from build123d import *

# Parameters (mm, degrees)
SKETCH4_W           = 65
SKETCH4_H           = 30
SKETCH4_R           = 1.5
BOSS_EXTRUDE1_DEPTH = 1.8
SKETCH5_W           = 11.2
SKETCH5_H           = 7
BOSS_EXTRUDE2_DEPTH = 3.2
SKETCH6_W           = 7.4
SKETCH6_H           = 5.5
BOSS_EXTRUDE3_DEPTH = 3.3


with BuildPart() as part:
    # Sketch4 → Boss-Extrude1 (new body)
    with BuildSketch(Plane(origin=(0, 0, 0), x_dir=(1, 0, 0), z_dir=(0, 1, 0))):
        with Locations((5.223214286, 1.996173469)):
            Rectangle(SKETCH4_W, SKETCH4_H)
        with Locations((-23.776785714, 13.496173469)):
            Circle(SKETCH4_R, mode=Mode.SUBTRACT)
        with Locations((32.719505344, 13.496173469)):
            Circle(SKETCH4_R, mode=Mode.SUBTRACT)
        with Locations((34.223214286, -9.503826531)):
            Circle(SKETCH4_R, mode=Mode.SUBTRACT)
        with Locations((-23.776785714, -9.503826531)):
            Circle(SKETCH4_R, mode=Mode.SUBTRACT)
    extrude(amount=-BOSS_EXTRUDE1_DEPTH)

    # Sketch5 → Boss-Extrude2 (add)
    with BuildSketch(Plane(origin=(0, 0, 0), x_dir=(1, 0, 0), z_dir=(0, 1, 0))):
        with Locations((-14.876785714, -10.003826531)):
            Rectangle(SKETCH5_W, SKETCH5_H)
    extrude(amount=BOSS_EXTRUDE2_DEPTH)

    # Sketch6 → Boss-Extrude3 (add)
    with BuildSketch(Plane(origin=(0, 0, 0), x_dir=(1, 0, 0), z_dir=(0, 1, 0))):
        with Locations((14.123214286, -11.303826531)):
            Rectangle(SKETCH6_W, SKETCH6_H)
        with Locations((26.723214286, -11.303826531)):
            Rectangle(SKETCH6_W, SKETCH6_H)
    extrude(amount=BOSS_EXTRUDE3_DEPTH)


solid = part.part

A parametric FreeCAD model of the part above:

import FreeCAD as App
import Part
import Sketcher
Q = App.Units.Quantity

doc = App.newDocument("Part")
body = doc.addObject("PartDesign::Body", "Body")

# Sketch on XZ plane
sketch1 = body.newObject("Sketcher::SketchObject", "Sketch")
sketch1.AttachmentSupport = (doc.getObject("XZ_Plane"), [""])
sketch1.MapMode = "FlatFace"
sketch1.addGeometry([
    Part.LineSegment(App.Vector(-27.276786, -16.996173, 0), App.Vector(-27.276786, 13.003827, 0)),  # 0
    Part.LineSegment(App.Vector(-27.276786, 13.003827, 0), App.Vector(37.723214, 13.003827, 0)),  # 1
    Part.LineSegment(App.Vector(37.723214, 13.003827, 0), App.Vector(37.723214, -16.996173, 0)),  # 2
    Part.LineSegment(App.Vector(37.723214, -16.996173, 0), App.Vector(-27.276786, -16.996173, 0)),  # 3
    Part.Circle(App.Vector(-23.776786, 9.503827, 0), App.Vector(0, 0, 1), 1.5),  # 4
    Part.Circle(App.Vector(34.223214, 9.503827, 0), App.Vector(0, 0, 1), 1.5),  # 5
    Part.Circle(App.Vector(-23.776786, -13.496173, 0), App.Vector(0, 0, 1), 1.5),  # 6
    Part.Circle(App.Vector(32.719505, -13.496173, 0), App.Vector(0, 0, 1), 1.5),  # 7
], False)
sketch1.addConstraint([
    Sketcher.Constraint("Coincident", 0, 2, 1, 1),
    Sketcher.Constraint("Coincident", 1, 2, 2, 1),
    Sketcher.Constraint("Coincident", 2, 2, 3, 1),
    Sketcher.Constraint("Coincident", 3, 2, 0, 1),
    Sketcher.Constraint("Vertical", 0),
    Sketcher.Constraint("Horizontal", 1),
    Sketcher.Constraint("Vertical", 2),
    Sketcher.Constraint("Horizontal", 3),
    Sketcher.Constraint("Equal", 4, 5),
    Sketcher.Constraint("Equal", 5, 6),
    Sketcher.Constraint("Equal", 6, 7),
    Sketcher.Constraint("Horizontal", 4, 3, 5, 3),
    Sketcher.Constraint("Horizontal", 6, 3, 7, 3),
    Sketcher.Constraint("Vertical", 4, 3, 6, 3),
    Sketcher.Constraint("Diameter", 4, Q("3 mm")),
    Sketcher.Constraint("DistanceX", 1, 1, 1, 2, Q("65 mm")),
    Sketcher.Constraint("DistanceY", 0, 1, 0, 2, Q("30 mm")),
    Sketcher.Constraint("DistanceX", 4, 3, 5, 3, Q("58 mm")),
    Sketcher.Constraint("DistanceY", 6, 3, 4, 3, Q("23 mm")),
    Sketcher.Constraint("DistanceX", 0, 2, 4, 3, Q("3.5 mm")),
    Sketcher.Constraint("DistanceY", 4, 3, 0, 2, Q("3.5 mm")),
    Sketcher.Constraint("DistanceX", 7, 3, 5, 3, Q("1.503709 mm")),
    Sketcher.Constraint("DistanceX", 4, 3, -1, 1, Q("23.776786 mm")),
    Sketcher.Constraint("DistanceY", -1, 1, 4, 3, Q("9.503827 mm")),
])
pad1 = body.newObject("PartDesign::Pad", "Pad")
pad1.Profile = sketch1
pad1.Length = 1.8

# Sketch on XZ plane
sketch2 = body.newObject("Sketcher::SketchObject", "Sketch001")
sketch2.AttachmentSupport = (doc.getObject("XZ_Plane"), [""])
sketch2.MapMode = "FlatFace"
sketch2.addGeometry([
    Part.LineSegment(App.Vector(-20.476786, 6.503827, 0), App.Vector(-20.476786, 13.503827, 0)),
    Part.LineSegment(App.Vector(-20.476786, 13.503827, 0), App.Vector(-9.276786, 13.503827, 0)),
    Part.LineSegment(App.Vector(-9.276786, 13.503827, 0), App.Vector(-9.276786, 6.503827, 0)),
    Part.LineSegment(App.Vector(-9.276786, 6.503827, 0), App.Vector(-20.476786, 6.503827, 0)),
], False)
sketch2.addConstraint([
    Sketcher.Constraint("Coincident", 0, 2, 1, 1),
    Sketcher.Constraint("Coincident", 1, 2, 2, 1),
    Sketcher.Constraint("Coincident", 2, 2, 3, 1),
    Sketcher.Constraint("Coincident", 3, 2, 0, 1),
    Sketcher.Constraint("Vertical", 0),
    Sketcher.Constraint("Horizontal", 1),
    Sketcher.Constraint("Vertical", 2),
    Sketcher.Constraint("Horizontal", 3),
    Sketcher.Constraint("DistanceY", 0, 1, 0, 2, Q("7 mm")),
    Sketcher.Constraint("DistanceX", 1, 1, 1, 2, Q("11.2 mm")),
    Sketcher.Constraint("DistanceX", 0, 2, -1, 1, Q("20.476786 mm")),
    Sketcher.Constraint("DistanceY", -1, 1, 0, 2, Q("13.503827 mm")),
])
pad2 = body.newObject("PartDesign::Pad", "Pad001")
pad2.Profile = sketch2
pad2.Length = 3.2
pad2.Reversed = True

# Sketch on XZ plane
sketch3 = body.newObject("Sketcher::SketchObject", "Sketch002")
sketch3.AttachmentSupport = (doc.getObject("XZ_Plane"), [""])
sketch3.MapMode = "FlatFace"
sketch3.addGeometry([
    Part.LineSegment(App.Vector(10.423214, 8.553827, 0), App.Vector(10.423214, 14.053827, 0)),  # 0
    Part.LineSegment(App.Vector(10.423214, 14.053827, 0), App.Vector(17.823214, 14.053827, 0)),  # 1
    Part.LineSegment(App.Vector(17.823214, 14.053827, 0), App.Vector(17.823214, 8.553827, 0)),  # 2
    Part.LineSegment(App.Vector(17.823214, 8.553827, 0), App.Vector(10.423214, 8.553827, 0)),  # 3
    Part.LineSegment(App.Vector(23.023214, 8.553827, 0), App.Vector(23.023214, 14.053827, 0)),  # 4
    Part.LineSegment(App.Vector(23.023214, 14.053827, 0), App.Vector(30.423214, 14.053827, 0)),  # 5
    Part.LineSegment(App.Vector(30.423214, 14.053827, 0), App.Vector(30.423214, 8.553827, 0)),  # 6
    Part.LineSegment(App.Vector(30.423214, 8.553827, 0), App.Vector(23.023214, 8.553827, 0)),  # 7
], False)
sketch3.addConstraint([
    Sketcher.Constraint("Coincident", 0, 2, 1, 1),
    Sketcher.Constraint("Coincident", 1, 2, 2, 1),
    Sketcher.Constraint("Coincident", 2, 2, 3, 1),
    Sketcher.Constraint("Coincident", 3, 2, 0, 1),
    Sketcher.Constraint("Coincident", 4, 2, 5, 1),
    Sketcher.Constraint("Coincident", 5, 2, 6, 1),
    Sketcher.Constraint("Coincident", 6, 2, 7, 1),
    Sketcher.Constraint("Coincident", 7, 2, 4, 1),
    Sketcher.Constraint("Vertical", 0),
    Sketcher.Constraint("Horizontal", 1),
    Sketcher.Constraint("Vertical", 2),
    Sketcher.Constraint("Horizontal", 3),
    Sketcher.Constraint("Vertical", 4),
    Sketcher.Constraint("Horizontal", 5),
    Sketcher.Constraint("Vertical", 6),
    Sketcher.Constraint("Horizontal", 7),
    Sketcher.Constraint("Horizontal", 1, 2, 4, 2),
    Sketcher.Constraint("Horizontal", 3, 2, 6, 2),
    Sketcher.Constraint("Equal", 3, 5),
    Sketcher.Constraint("DistanceX", 1, 1, 1, 2, Q("7.4 mm")),
    Sketcher.Constraint("DistanceY", 0, 1, 0, 2, Q("5.5 mm")),
    Sketcher.Constraint("DistanceX", 0, 2, 5, 2, Q("20 mm")),
    Sketcher.Constraint("DistanceX", -1, 1, 0, 2, Q("10.423214 mm")),
    Sketcher.Constraint("DistanceY", -1, 1, 0, 2, Q("14.053827 mm")),
])
pad3 = body.newObject("PartDesign::Pad", "Pad002")
pad3.Profile = sketch3
pad3.Length = 3.3
pad3.Reversed = True

doc.recompute()
